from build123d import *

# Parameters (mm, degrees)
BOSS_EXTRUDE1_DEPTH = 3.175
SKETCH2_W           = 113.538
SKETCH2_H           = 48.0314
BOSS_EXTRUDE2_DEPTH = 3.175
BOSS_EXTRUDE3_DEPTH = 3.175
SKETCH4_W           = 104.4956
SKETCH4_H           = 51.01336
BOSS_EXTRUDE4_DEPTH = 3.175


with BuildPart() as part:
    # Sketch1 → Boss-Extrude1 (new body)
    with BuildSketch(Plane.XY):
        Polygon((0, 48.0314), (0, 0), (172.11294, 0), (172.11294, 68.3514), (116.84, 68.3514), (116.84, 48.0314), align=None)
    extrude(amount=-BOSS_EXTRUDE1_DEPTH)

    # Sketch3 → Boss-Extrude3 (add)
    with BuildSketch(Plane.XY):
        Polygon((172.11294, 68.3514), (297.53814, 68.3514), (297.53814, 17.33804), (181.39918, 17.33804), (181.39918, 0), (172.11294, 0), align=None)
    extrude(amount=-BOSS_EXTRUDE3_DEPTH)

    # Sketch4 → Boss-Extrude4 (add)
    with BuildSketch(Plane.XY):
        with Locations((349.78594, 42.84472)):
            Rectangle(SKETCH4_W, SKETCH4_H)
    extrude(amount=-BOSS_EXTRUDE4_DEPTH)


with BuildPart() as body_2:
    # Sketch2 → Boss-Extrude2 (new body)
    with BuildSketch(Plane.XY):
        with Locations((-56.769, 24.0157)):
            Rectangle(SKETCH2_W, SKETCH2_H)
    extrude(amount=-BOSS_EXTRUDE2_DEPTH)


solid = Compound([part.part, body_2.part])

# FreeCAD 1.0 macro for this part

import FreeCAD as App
import Part
import Sketcher
from FreeCAD import Vector
Q = App.Units.Quantity


def add_polygon(sketch, points):
    """Adds a closed chain of lines whose ends are joined by coincident constraints."""
    first, n = sketch.GeometryCount, len(points)
    for a, b in zip(points, points[1:] + points[:1]):
        sketch.addGeometry(Part.LineSegment(App.Vector(*a, 0), App.Vector(*b, 0)), False)
    for i in range(n):
        sketch.addConstraint(Sketcher.Constraint("Coincident", first + i, 2, first + (i + 1) % n, 1))

doc = App.newDocument("Part")
body = doc.addObject("PartDesign::Body", "Body")

# Sketch on XY plane
sketch1 = body.newObject("Sketcher::SketchObject", "Sketch")
sketch1.AttachmentSupport = (doc.getObject("XY_Plane"), [""])
sketch1.MapMode = "FlatFace"
add_polygon(sketch1, [(0, 48), (0, 0), (172, 0), (172, 68), (117, 68), (117, 48)])  # lines 0-5
sketch1.addConstraint(Sketcher.Constraint("Vertical", 0))
sketch1.addConstraint(Sketcher.Constraint("Horizontal", 1))
sketch1.addConstraint(Sketcher.Constraint("Vertical", 2))
sketch1.addConstraint(Sketcher.Constraint("Horizontal", 3))
sketch1.addConstraint(Sketcher.Constraint("Vertical", 4))
sketch1.addConstraint(Sketcher.Constraint("Horizontal", 5))
sketch1.addConstraint(Sketcher.Constraint("Coincident", 0, 2, -1, 1))
sketch1.addConstraint(Sketcher.Constraint("DistanceX", 5, 2, 5, 1, Q("4.6 in")))
sketch1.addConstraint(Sketcher.Constraint("DistanceY", 4, 2, 4, 1, Q("0.8 in")))
sketch1.addConstraint(Sketcher.Constraint("DistanceY", 0, 2, 0, 1, Q("1.891 in")))
sketch1.addConstraint(Sketcher.Constraint("DistanceX", 1, 1, 1, 2, Q("6.7761 in")))
pad1 = body.newObject("PartDesign::Pad", "Pad")
pad1.Profile = sketch1
pad1.Length = Q("0.125 in")
pad1.Reversed = True

# Sketch on XY plane
sketch2 = body.newObject("Sketcher::SketchObject", "Sketch001")
sketch2.AttachmentSupport = (doc.getObject("XY_Plane"), [""])
sketch2.MapMode = "FlatFace"
add_polygon(sketch2, [(298, 68), (172, 68), (172, 0), (181, 0), (181, 17), (298, 17)])  # lines 0-5
sketch2.addConstraint(Sketcher.Constraint("Horizontal", 0))
sketch2.addConstraint(Sketcher.Constraint("Vertical", 1))
sketch2.addConstraint(Sketcher.Constraint("Horizontal", 2))
sketch2.addConstraint(Sketcher.Constraint("Vertical", 3))
sketch2.addConstraint(Sketcher.Constraint("Horizontal", 4))
sketch2.addConstraint(Sketcher.Constraint("Vertical", 5))
sketch2.addConstraint(Sketcher.Constraint("PointOnObject", 1, 2, -1))
sketch2.addConstraint(Sketcher.Constraint("DistanceX", 0, 2, 0, 1, Q("4.938 in")))
sketch2.addConstraint(Sketcher.Constraint("DistanceY", 1, 2, 1, 1, Q("2.691 in")))
sketch2.addConstraint(Sketcher.Constraint("DistanceX", 2, 1, 2, 2, Q("0.3656 in")))
sketch2.addConstraint(Sketcher.Constraint("DistanceY", 3, 1, 3, 2, Q("0.6826 in")))
sketch2.addConstraint(Sketcher.Constraint("DistanceX", -1, 1, 0, 2, Q("6.7761 in")))
pad2 = body.newObject("PartDesign::Pad", "Pad001")
pad2.Profile = sketch2
pad2.Length = Q("0.125 in")
pad2.Reversed = True

# Sketch on XY plane
sketch3 = body.newObject("Sketcher::SketchObject", "Sketch002")
sketch3.AttachmentSupport = (doc.getObject("XY_Plane"), [""])
sketch3.MapMode = "FlatFace"
add_polygon(sketch3, [(298, 68), (298, 17), (402, 17), (402, 68)])  # lines 0-3
sketch3.addConstraint(Sketcher.Constraint("Vertical", 0))
sketch3.addConstraint(Sketcher.Constraint("Horizontal", 1))
sketch3.addConstraint(Sketcher.Constraint("Vertical", 2))
sketch3.addConstraint(Sketcher.Constraint("Horizontal", 3))
sketch3.addConstraint(Sketcher.Constraint("DistanceX", 1, 1, 1, 2, Q("4.114 in")))
sketch3.addConstraint(Sketcher.Constraint("DistanceY", 0, 2, 0, 1, Q("2.0084 in")))
sketch3.addConstraint(Sketcher.Constraint("DistanceY", -1, 1, 2, 2, Q("2.691 in")))
sketch3.addConstraint(Sketcher.Constraint("DistanceX", -1, 1, 0, 2, Q("11.7141 in")))
pad3 = body.newObject("PartDesign::Pad", "Pad002")
pad3.Profile = sketch3
pad3.Length = Q("0.125 in")
pad3.Reversed = True
body2 = doc.addObject("PartDesign::Body", "Body001")

# Sketch on XY plane
sketch4 = body2.newObject("Sketcher::SketchObject", "Sketch003")
sketch4.AttachmentSupport = (doc.getObject("XY_Plane001"), [""])
sketch4.MapMode = "FlatFace"
add_polygon(sketch4, [(-114, 48), (-114, 0), (0, 0), (0, 48)])  # lines 0-3
sketch4.addConstraint(Sketcher.Constraint("Vertical", 0))
sketch4.addConstraint(Sketcher.Constraint("Horizontal", 1))
sketch4.addConstraint(Sketcher.Constraint("Vertical", 2))
sketch4.addConstraint(Sketcher.Constraint("Horizontal", 3))
sketch4.addConstraint(Sketcher.Constraint("Coincident", 1, 2, -1, 1))
sketch4.addConstraint(Sketcher.Constraint("DistanceX", 1, 1, 1, 2, Q("4.47 in")))
sketch4.addConstraint(Sketcher.Constraint("DistanceY", 0, 2, 0, 1, Q("1.891 in")))
pad4 = body2.newObject("PartDesign::Pad", "Pad003")
pad4.Profile = sketch4
pad4.Length = Q("0.125 in")
pad4.Reversed = True

doc.recompute()
